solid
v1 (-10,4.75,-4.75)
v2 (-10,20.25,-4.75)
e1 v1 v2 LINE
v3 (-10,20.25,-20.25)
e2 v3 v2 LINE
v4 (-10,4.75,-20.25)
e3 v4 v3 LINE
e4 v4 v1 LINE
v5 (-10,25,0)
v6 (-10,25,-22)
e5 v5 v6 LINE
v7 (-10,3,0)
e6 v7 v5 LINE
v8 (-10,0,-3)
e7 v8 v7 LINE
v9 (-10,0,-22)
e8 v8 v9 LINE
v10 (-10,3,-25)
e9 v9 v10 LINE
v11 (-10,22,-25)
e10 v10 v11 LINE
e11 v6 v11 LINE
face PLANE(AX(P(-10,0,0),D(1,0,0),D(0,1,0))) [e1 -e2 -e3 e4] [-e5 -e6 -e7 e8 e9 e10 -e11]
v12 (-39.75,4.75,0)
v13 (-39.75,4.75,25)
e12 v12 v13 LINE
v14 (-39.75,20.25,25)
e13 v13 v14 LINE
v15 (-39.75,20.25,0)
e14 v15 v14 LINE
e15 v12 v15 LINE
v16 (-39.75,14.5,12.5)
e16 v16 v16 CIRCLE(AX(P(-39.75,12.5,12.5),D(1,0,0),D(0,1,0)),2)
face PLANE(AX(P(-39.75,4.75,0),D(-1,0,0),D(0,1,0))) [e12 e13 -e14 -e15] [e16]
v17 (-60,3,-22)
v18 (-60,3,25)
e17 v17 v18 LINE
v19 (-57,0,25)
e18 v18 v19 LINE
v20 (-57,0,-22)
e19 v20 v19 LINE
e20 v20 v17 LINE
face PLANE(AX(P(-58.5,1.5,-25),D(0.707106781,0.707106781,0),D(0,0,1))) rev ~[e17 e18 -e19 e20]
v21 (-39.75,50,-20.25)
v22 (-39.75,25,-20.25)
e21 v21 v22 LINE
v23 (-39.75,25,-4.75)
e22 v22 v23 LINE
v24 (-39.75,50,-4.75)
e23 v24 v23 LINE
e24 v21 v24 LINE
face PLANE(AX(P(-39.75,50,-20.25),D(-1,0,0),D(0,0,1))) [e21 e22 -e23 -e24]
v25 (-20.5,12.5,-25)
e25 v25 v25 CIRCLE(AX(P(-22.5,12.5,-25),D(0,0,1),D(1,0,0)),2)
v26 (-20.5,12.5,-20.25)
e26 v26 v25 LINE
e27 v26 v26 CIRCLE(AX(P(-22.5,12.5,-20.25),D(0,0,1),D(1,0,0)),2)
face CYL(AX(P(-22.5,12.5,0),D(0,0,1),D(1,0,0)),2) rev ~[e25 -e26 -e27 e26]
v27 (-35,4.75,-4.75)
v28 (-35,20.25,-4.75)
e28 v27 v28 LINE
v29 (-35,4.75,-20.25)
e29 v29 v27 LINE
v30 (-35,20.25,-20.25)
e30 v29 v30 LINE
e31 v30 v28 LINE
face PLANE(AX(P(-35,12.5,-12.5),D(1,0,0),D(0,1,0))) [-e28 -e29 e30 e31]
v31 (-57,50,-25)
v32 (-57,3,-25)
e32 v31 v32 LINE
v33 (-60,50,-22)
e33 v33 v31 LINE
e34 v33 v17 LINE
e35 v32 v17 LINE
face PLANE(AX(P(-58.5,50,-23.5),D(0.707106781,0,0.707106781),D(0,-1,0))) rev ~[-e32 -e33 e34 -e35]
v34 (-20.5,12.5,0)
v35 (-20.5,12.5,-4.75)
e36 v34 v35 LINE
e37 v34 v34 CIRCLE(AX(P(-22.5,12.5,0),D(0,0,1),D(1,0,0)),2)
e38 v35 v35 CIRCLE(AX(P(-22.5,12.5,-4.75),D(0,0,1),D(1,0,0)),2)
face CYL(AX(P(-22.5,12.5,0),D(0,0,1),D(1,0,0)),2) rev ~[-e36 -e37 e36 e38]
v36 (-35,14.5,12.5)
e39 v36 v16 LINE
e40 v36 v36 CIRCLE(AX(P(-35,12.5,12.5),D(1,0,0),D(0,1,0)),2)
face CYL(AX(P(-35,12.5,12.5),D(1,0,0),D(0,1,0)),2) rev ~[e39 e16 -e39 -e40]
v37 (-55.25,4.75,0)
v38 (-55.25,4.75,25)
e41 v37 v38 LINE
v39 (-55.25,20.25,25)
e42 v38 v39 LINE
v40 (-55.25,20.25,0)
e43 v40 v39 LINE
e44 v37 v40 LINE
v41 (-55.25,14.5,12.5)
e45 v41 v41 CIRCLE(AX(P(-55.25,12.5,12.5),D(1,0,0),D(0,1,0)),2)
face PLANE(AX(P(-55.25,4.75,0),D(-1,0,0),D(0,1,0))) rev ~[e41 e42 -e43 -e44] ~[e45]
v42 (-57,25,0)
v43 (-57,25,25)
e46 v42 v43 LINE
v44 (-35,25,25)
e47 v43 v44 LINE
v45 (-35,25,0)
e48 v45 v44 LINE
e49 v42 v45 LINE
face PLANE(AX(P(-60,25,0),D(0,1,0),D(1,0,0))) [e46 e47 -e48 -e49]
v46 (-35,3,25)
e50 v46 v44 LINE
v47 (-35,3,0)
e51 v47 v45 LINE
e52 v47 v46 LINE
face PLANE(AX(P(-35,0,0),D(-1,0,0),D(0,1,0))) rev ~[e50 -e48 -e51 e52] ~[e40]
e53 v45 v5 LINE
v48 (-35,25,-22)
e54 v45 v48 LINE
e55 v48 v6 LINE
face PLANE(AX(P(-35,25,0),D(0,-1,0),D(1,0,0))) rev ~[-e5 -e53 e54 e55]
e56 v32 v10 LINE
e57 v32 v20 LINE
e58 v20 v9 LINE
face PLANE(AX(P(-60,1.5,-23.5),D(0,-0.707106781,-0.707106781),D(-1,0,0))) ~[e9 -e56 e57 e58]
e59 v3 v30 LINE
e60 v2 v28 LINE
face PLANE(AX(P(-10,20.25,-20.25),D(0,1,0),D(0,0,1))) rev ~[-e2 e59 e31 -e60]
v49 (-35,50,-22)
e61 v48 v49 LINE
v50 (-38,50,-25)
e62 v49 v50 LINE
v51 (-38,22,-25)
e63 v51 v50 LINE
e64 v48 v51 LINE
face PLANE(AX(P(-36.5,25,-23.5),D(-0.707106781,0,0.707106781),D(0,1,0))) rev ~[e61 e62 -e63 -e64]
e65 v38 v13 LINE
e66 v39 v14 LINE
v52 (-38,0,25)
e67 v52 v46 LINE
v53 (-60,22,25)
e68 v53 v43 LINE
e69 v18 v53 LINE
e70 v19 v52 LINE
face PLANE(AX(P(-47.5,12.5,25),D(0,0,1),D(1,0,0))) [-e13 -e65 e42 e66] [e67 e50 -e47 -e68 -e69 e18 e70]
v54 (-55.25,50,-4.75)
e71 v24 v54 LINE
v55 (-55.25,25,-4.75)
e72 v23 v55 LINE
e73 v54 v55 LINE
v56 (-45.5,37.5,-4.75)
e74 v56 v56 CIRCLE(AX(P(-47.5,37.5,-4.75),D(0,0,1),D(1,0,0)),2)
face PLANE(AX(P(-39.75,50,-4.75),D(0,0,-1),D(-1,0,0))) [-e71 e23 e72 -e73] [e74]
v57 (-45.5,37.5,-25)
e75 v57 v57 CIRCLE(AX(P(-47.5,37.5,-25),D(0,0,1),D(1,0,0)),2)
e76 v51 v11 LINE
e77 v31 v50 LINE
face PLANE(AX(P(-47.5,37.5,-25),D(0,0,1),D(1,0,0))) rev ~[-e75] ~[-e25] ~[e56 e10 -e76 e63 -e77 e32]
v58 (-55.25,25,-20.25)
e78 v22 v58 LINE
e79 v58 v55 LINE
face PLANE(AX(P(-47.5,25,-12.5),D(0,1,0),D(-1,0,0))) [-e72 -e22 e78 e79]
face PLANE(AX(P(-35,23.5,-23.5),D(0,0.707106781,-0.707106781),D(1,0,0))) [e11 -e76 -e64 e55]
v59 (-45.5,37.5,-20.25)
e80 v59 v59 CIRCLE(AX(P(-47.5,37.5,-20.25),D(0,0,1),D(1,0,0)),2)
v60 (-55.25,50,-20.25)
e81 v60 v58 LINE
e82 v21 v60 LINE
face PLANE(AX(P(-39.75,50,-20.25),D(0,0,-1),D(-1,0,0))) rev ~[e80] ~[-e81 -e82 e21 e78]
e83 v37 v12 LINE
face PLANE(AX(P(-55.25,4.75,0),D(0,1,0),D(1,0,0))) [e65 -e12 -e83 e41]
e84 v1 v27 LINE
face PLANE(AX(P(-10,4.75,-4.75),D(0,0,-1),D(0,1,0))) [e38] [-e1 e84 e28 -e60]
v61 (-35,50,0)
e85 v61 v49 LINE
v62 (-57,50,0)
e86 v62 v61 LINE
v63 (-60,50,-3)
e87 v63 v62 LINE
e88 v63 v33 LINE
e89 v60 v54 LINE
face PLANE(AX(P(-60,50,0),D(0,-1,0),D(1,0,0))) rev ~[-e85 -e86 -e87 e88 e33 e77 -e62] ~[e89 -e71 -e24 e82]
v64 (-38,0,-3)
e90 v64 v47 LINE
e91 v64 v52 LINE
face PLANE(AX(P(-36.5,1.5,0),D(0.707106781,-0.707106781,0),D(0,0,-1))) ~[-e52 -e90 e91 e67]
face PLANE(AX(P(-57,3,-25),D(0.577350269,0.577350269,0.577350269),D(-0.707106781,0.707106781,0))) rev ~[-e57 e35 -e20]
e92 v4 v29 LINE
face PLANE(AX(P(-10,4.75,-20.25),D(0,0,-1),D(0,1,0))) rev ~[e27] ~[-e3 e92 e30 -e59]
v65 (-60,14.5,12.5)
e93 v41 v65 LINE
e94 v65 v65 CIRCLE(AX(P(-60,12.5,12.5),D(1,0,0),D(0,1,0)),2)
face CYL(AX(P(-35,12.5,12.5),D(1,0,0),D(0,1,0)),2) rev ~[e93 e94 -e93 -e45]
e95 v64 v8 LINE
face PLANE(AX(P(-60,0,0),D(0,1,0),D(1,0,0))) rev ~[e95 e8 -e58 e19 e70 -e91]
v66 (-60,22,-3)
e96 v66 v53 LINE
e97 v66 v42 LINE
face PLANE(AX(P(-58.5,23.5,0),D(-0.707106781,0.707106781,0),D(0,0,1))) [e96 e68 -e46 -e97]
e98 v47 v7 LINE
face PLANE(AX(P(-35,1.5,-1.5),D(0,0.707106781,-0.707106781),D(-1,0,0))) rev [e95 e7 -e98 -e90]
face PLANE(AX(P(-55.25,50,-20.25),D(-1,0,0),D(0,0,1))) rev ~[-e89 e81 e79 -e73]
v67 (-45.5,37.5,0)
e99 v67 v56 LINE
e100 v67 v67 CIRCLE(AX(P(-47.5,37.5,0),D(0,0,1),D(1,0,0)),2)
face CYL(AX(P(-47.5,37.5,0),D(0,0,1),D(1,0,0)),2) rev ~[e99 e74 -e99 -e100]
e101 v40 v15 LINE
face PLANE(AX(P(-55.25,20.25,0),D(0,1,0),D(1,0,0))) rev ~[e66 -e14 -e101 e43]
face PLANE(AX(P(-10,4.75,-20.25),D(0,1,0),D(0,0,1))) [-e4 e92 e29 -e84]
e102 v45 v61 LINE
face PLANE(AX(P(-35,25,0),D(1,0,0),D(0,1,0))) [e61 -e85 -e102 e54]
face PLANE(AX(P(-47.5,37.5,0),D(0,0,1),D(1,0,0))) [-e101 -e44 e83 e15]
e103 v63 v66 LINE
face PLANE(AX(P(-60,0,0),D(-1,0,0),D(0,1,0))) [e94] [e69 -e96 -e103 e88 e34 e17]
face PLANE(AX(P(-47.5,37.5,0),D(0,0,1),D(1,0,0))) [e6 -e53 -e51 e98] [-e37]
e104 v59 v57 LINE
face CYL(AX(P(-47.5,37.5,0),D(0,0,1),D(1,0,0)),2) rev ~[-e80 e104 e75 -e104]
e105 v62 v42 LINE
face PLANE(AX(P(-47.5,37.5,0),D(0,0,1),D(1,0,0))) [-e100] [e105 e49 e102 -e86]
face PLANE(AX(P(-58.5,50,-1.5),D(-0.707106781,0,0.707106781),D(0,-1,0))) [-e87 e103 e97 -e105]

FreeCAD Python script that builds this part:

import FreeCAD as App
import Part
import Sketcher
from FreeCAD import Vector


def edges_at(feature, points):
    """Names of the edges that pass closest to the given points."""
    edges = feature.Shape.Edges
    near = lambda p: min(range(len(edges)), key=lambda i: edges[i].distToShape(Part.Vertex(*p))[0])
    return sorted({f"Edge{near(p) + 1}" for p in points})

doc = App.newDocument("Part")
body = doc.addObject("PartDesign::Body", "Body")

sketch1 = doc.addObject("Sketcher::SketchObject", "Sketch")
body.addObject(sketch1)
sketch1.AttachmentSupport = (doc.XY_Plane, [""])
sketch1.MapMode = "FlatFace"
sketch1.addGeometry([
    Part.LineSegment(Vector(-60, 50, 0), Vector(-60, 0, 0)),
    Part.LineSegment(Vector(-60, 0, 0), Vector(-10, 0, 0)),
    Part.LineSegment(Vector(-10, 0, 0), Vector(-10, 25, 0)),
    Part.LineSegment(Vector(-10, 25, 0), Vector(-35, 25, 0)),
    Part.LineSegment(Vector(-35, 25, 0), Vector(-35, 50, 0)),
    Part.LineSegment(Vector(-35, 50, 0), Vector(-60, 50, 0)),
    Part.Circle(Vector(-22.5, 12.5, 0), Vector(0, 0, 1), 2),
    Part.Circle(Vector(-47.5, 37.5, 0), Vector(0, 0, 1), 2),
], False)
sketch1.addConstraint([
    Sketcher.Constraint("Coincident", 0, 2, 1, 1),
    Sketcher.Constraint("Coincident", 1, 2, 2, 1),
    Sketcher.Constraint("Coincident", 2, 2, 3, 1),
    Sketcher.Constraint("Coincident", 3, 2, 4, 1),
    Sketcher.Constraint("Coincident", 4, 2, 5, 1),
    Sketcher.Constraint("Coincident", 5, 2, 0, 1),
    Sketcher.Constraint("Vertical", 0),
    Sketcher.Constraint("Horizontal", 1),
    Sketcher.Constraint("Vertical", 2),
    Sketcher.Constraint("Horizontal", 3),
    Sketcher.Constraint("Vertical", 4),
    Sketcher.Constraint("Horizontal", 5),
    Sketcher.Constraint("Equal", 6, 7),
    Sketcher.Constraint("PointOnObject", 0, 2, -1),
    Sketcher.Constraint("Equal", 3, 5),
    Sketcher.Constraint("Equal", 1, 0),
    Sketcher.Constraint("Equal", 5, 2),
    Sketcher.Constraint("Diameter", 6, 4.0),
    Sketcher.Constraint("DistanceX", 1, 1, 1, 2, 50.0),
    Sketcher.Constraint("DistanceX", 0, 2, -1, 1, 60.0),
    Sketcher.Constraint("DistanceX", 7, 3, 6, 3, 25.0),
    Sketcher.Constraint("DistanceY", 6, 3, 7, 3, 25.0),
    Sketcher.Constraint("DistanceX", 6, 3, -1, 1, 22.5),
    Sketcher.Constraint("DistanceY", -1, 1, 6, 3, 12.5),
])
pad1 = doc.addObject("PartDesign::Pad", "Pad")
body.addObject(pad1)
pad1.Profile = sketch1
pad1.Length = 25
pad1.Reversed = True

sketch2 = doc.addObject("Sketcher::SketchObject", "Sketch001")
body.addObject(sketch2)
sketch2.AttachmentSupport = (doc.YZ_Plane, [""])
sketch2.MapMode = "FlatFace"
sketch2.AttachmentOffset = App.Placement(Vector(0, 0, -10), App.Rotation())
sketch2.addGeometry([
    Part.LineSegment(Vector(5, -5, 0), Vector(5, -20, 0)),
    Part.LineSegment(Vector(5, -20, 0), Vector(20, -20, 0)),
    Part.LineSegment(Vector(20, -20, 0), Vector(20, -5, 0)),
    Part.LineSegment(Vector(20, -5, 0), Vector(5, -5, 0)),
], False)
sketch2.addConstraint([
    Sketcher.Constraint("Coincident", 0, 2, 1, 1),
    Sketcher.Constraint("Coincident", 1, 2, 2, 1),
    Sketcher.Constraint("Coincident", 2, 2, 3, 1),
    Sketcher.Constraint("Coincident", 3, 2, 0, 1),
    Sketcher.Constraint("Vertical", 0),
    Sketcher.Constraint("Horizontal", 1),
    Sketcher.Constraint("Vertical", 2),
    Sketcher.Constraint("Horizontal", 3),
    Sketcher.Constraint("Equal", 3, 0),
    Sketcher.Constraint("DistanceX", 1, 1, 1, 2, 15.5),
    Sketcher.Constraint("DistanceX", -1, 1, 0, 2, 4.75),
    Sketcher.Constraint("DistanceY", 0, 2, -1, 1, 20.25),
])
pocket1 = doc.addObject("PartDesign::Pocket", "Pocket")
body.addObject(pocket1)
pocket1.Profile = sketch2
pocket1.Length = 25

sketch3 = doc.addObject("Sketcher::SketchObject", "Sketch002")
body.addObject(sketch3)
sketch3.AttachmentSupport = (doc.XZ_Plane, [""])
sketch3.MapMode = "FlatFace"
sketch3.AttachmentOffset = App.Placement(Vector(0, 0, -50), App.Rotation())
sketch3.addGeometry([
    Part.LineSegment(Vector(-40, -5, 0), Vector(-40, -20, 0)),
    Part.LineSegment(Vector(-40, -20, 0), Vector(-55, -20, 0)),
    Part.LineSegment(Vector(-55, -20, 0), Vector(-55, -5, 0)),
    Part.LineSegment(Vector(-55, -5, 0), Vector(-40, -5, 0)),
], False)
sketch3.addConstraint([
    Sketcher.Constraint("Coincident", 0, 2, 1, 1),
    Sketcher.Constraint("Coincident", 1, 2, 2, 1),
    Sketcher.Constraint("Coincident", 2, 2, 3, 1),
    Sketcher.Constraint("Coincident", 3, 2, 0, 1),
    Sketcher.Constraint("Vertical", 0),
    Sketcher.Constraint("Horizontal", 1),
    Sketcher.Constraint("Vertical", 2),
    Sketcher.Constraint("Horizontal", 3),
    Sketcher.Constraint("Equal", 3, 0),
    Sketcher.Constraint("DistanceX", 1, 2, 1, 1, 15.5),
    Sketcher.Constraint("DistanceX", 0, 2, -1, 1, 39.75),
    Sketcher.Constraint("DistanceY", 0, 2, -1, 1, 20.25),
])
pocket2 = doc.addObject("PartDesign::Pocket", "Pocket001")
body.addObject(pocket2)
pocket2.Profile = sketch3
pocket2.Length = 25
pocket2.Reversed = True

sketch4 = doc.addObject("Sketcher::SketchObject", "Sketch003")
body.addObject(sketch4)
sketch4.AttachmentSupport = (doc.XY_Plane, [""])
sketch4.MapMode = "FlatFace"
sketch4.addGeometry([
    Part.LineSegment(Vector(-60, 25, 0), Vector(-60, 0, 0)),
    Part.LineSegment(Vector(-60, 0, 0), Vector(-35, 0, 0)),
    Part.LineSegment(Vector(-35, 0, 0), Vector(-35, 25, 0)),
    Part.LineSegment(Vector(-35, 25, 0), Vector(-60, 25, 0)),
    Part.LineSegment(Vector(-40, 5, 0), Vector(-55, 5, 0)),
    Part.LineSegment(Vector(-55, 5, 0), Vector(-55, 20, 0)),
    Part.LineSegment(Vector(-55, 20, 0), Vector(-40, 20, 0)),
    Part.LineSegment(Vector(-40, 20, 0), Vector(-40, 5, 0)),
], False)
sketch4.addConstraint([
    Sketcher.Constraint("Coincident", 0, 2, 1, 1),
    Sketcher.Constraint("Coincident", 1, 2, 2, 1),
    Sketcher.Constraint("Coincident", 2, 2, 3, 1),
    Sketcher.Constraint("Coincident", 3, 2, 0, 1),
    Sketcher.Constraint("Coincident", 4, 2, 5, 1),
    Sketcher.Constraint("Coincident", 5, 2, 6, 1),
    Sketcher.Constraint("Coincident", 6, 2, 7, 1),
    Sketcher.Constraint("Coincident", 7, 2, 4, 1),
    Sketcher.Constraint("Vertical", 0),
    Sketcher.Constraint("Horizontal", 1),
    Sketcher.Constraint("Vertical", 2),
    Sketcher.Constraint("Horizontal", 3),
    Sketcher.Constraint("Horizontal", 4),
    Sketcher.Constraint("Vertical", 5),
    Sketcher.Constraint("Horizontal", 6),
    Sketcher.Constraint("Vertical", 7),
    Sketcher.Constraint("PointOnObject", 0, 2, -1),
    Sketcher.Constraint("Equal", 3, 0),
    Sketcher.Constraint("Equal", 6, 5),
    Sketcher.Constraint("DistanceX", 1, 1, 1, 2, 25.0),
    Sketcher.Constraint("DistanceX", 4, 2, 4, 1, 15.5),
    Sketcher.Constraint("DistanceX", 0, 2, -1, 1, 60.0),
    Sketcher.Constraint("DistanceX", 4, 2, -1, 1, 55.25),
    Sketcher.Constraint("DistanceY", -1, 1, 4, 2, 4.75),
])
pad2 = doc.addObject("PartDesign::Pad", "Pad001")
body.addObject(pad2)
pad2.Profile = sketch4
pad2.Length = 25
doc.recompute()

chamfer = doc.addObject("PartDesign::Chamfer", "Chamfer")
body.addObject(chamfer)
chamfer.Base = (pad2, edges_at(pad2, [
    (-60, 0, 0),
    (-35, 0, -25),
    (-60, 25, -25),
    (-35, 0, 12.5),
    (-22.5, 0, 0),
    (-35, 37.5, -25),
    (-22.5, 25, -25),
    (-60, 37.5, 0),
    (-60, 25, 12.5),
]))
chamfer.Size = 3

sketch5 = doc.addObject("Sketcher::SketchObject", "Sketch004")
body.addObject(sketch5)
sketch5.AttachmentSupport = (doc.YZ_Plane, [""])
sketch5.MapMode = "FlatFace"
sketch5.AttachmentOffset = App.Placement(Vector(0, 0, -35), App.Rotation())
sketch5.addGeometry(Part.Circle(Vector(12.5, 12.5, 0), Vector(0, 0, 1), 2), False)
sketch5.addConstraint([
    Sketcher.Constraint("Diameter", 0, 4.0),
    Sketcher.Constraint("DistanceX", -1, 1, 0, 3, 12.5),
    Sketcher.Constraint("DistanceY", -1, 1, 0, 3, 12.5),
])
pocket3 = doc.addObject("PartDesign::Pocket", "Pocket002")
body.addObject(pocket3)
pocket3.Profile = sketch5
pocket3.Length = 25

doc.recompute()
